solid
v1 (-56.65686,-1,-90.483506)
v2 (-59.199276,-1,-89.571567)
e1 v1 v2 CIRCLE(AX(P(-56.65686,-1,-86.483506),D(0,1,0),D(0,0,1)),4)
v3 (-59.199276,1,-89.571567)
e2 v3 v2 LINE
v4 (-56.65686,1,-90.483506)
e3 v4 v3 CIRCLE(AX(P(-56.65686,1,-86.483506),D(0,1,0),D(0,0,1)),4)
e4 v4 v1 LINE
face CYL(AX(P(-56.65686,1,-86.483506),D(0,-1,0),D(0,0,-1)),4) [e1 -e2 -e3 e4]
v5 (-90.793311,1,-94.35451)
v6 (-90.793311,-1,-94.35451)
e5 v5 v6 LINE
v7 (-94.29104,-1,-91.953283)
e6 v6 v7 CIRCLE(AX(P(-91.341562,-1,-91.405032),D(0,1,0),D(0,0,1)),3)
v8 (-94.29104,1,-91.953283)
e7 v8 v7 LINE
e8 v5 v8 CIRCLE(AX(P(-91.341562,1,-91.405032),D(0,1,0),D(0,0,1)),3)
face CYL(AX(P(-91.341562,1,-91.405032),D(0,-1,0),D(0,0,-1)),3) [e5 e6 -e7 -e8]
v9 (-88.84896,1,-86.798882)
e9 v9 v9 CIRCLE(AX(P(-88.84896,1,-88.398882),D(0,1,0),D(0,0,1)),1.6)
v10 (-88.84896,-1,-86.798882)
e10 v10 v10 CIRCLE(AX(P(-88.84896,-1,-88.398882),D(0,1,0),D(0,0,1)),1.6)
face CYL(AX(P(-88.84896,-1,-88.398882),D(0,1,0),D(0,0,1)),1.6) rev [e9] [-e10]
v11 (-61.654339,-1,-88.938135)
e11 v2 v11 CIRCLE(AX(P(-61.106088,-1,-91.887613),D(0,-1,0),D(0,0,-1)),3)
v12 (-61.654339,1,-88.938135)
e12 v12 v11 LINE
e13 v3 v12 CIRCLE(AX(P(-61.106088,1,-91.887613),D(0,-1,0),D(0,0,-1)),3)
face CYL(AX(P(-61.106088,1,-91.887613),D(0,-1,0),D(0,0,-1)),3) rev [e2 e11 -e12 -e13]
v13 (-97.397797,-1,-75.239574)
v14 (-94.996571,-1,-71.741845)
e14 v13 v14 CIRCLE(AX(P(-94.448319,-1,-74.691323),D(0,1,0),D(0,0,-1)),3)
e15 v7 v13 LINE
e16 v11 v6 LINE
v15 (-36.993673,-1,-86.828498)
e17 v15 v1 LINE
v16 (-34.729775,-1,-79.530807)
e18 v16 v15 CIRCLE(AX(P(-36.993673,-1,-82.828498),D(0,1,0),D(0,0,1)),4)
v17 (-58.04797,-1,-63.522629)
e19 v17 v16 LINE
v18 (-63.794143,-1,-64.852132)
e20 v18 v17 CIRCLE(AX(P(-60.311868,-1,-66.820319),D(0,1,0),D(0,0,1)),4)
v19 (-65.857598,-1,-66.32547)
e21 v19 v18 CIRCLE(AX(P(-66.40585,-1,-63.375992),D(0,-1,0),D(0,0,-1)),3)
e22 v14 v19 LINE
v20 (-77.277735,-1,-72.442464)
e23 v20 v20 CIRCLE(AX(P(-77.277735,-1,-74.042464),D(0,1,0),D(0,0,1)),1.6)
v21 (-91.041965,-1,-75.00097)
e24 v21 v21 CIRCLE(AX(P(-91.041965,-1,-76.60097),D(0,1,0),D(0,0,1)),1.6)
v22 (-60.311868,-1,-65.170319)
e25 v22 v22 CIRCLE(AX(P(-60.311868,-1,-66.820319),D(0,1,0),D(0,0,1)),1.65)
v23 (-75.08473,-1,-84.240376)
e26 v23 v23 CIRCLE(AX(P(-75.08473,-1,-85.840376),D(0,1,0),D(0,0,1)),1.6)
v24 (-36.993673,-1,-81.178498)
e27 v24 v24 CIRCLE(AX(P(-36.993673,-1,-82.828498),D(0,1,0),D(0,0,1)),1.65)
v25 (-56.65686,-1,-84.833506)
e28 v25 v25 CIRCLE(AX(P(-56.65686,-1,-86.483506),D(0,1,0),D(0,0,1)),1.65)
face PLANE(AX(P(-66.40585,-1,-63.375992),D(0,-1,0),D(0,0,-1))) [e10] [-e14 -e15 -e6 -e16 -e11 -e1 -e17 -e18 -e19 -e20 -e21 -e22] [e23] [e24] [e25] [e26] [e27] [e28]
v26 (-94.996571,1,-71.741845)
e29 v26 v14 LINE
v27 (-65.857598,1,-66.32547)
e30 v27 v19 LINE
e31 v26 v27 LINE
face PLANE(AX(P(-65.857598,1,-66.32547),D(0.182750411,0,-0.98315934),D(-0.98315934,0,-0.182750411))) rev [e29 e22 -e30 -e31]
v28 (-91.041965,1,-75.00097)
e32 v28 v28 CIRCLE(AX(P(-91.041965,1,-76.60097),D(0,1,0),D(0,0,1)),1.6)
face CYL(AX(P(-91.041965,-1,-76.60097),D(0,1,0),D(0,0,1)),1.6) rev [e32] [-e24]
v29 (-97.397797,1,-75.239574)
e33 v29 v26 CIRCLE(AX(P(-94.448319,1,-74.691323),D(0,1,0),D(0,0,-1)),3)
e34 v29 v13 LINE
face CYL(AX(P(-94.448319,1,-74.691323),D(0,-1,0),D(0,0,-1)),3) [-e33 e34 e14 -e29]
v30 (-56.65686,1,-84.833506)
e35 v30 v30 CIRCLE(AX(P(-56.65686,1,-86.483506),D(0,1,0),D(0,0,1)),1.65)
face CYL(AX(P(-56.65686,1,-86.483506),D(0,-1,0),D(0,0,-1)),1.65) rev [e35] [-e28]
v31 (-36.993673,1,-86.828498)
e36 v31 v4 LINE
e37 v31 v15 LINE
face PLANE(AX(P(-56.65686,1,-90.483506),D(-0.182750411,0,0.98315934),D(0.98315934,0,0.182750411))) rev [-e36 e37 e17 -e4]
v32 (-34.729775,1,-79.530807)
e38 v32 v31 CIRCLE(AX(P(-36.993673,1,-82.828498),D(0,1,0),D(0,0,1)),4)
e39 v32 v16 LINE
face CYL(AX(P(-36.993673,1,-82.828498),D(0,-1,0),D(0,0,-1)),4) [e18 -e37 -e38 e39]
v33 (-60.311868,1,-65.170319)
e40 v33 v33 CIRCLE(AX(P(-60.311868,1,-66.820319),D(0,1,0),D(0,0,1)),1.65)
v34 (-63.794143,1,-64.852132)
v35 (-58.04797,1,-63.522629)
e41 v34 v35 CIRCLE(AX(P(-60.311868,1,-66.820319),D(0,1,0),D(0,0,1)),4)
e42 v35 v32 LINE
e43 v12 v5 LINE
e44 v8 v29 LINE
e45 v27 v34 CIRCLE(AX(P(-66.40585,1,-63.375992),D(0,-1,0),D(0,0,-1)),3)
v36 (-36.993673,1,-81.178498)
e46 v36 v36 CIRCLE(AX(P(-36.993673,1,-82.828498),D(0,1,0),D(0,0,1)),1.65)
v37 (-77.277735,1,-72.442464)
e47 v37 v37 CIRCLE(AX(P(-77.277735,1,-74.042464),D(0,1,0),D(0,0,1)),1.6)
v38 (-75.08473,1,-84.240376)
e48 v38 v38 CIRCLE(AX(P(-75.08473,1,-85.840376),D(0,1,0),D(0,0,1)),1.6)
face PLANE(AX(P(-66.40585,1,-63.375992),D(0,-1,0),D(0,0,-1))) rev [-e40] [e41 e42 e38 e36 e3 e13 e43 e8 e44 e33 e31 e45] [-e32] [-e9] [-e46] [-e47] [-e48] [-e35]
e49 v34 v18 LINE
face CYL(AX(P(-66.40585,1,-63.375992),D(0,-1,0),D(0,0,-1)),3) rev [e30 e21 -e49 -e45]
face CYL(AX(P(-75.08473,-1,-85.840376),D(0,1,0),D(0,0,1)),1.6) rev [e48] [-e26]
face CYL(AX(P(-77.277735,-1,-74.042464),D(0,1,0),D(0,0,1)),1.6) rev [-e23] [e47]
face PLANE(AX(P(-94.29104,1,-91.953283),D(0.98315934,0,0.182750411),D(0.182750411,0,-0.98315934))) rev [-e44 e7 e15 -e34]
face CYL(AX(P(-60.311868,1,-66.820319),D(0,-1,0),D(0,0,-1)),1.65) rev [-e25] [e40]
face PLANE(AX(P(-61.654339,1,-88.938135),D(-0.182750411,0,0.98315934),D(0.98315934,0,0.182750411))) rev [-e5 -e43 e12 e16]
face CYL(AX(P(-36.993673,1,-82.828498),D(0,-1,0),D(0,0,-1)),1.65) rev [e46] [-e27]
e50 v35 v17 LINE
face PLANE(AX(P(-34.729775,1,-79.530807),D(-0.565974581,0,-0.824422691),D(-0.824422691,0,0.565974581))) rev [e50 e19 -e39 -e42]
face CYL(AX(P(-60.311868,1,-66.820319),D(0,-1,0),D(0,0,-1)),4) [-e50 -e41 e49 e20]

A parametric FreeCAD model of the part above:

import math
import FreeCAD as App
import Part
import Sketcher
from FreeCAD import Vector
Q = App.Units.Quantity

doc = App.newDocument("Part")
body = doc.addObject("PartDesign::Body", "Body")

sketch1 = body.newObject("Sketcher::SketchObject", "Sketch")
sketch1.AttachmentSupport = (doc.getObject("XZ_Plane"), [""])
sketch1.MapMode = "FlatFace"
sketch1.addGeometry(Part.LineSegment(Vector(-37, -86.8, 0), Vector(-56.7, -90.5, 0)), False)
sketch1.addGeometry(Part.ArcOfCircle(Part.Circle(Vector(-56.7, -86.5, 0), Vector(0, 0, 1), 4), math.radians(-129), math.radians(-90)), False)
sketch1.addGeometry(Part.ArcOfCircle(Part.Circle(Vector(-61.1, -91.9, 0), Vector(0, 0, 1), 3), math.radians(51), math.radians(101)), False)
sketch1.addGeometry(Part.LineSegment(Vector(-61.7, -88.9, 0), Vector(-90.8, -94.4, 0)), False)
sketch1.addGeometry(Part.ArcOfCircle(Part.Circle(Vector(-91.3, -91.4, 0), Vector(0, 0, 1), 3), math.radians(-169), math.radians(-79)), False)
sketch1.addGeometry(Part.LineSegment(Vector(-94.3, -92, 0), Vector(-97.4, -75.2, 0)), False)
sketch1.addGeometry(Part.ArcOfCircle(Part.Circle(Vector(-94.4, -74.7, 0), Vector(0, 0, 1), 3), math.radians(101), math.radians(191)), False)
sketch1.addGeometry(Part.LineSegment(Vector(-95, -71.7, 0), Vector(-65.9, -66.3, 0)), False)
sketch1.addGeometry(Part.ArcOfCircle(Part.Circle(Vector(-66.4, -63.4, 0), Vector(0, 0, 1), 3), math.radians(-79), math.radians(-29)), False)
sketch1.addGeometry(Part.ArcOfCircle(Part.Circle(Vector(-60.3, -66.8, 0), Vector(0, 0, 1), 4), math.radians(56), math.radians(151)), False)
sketch1.addGeometry(Part.LineSegment(Vector(-58, -63.5, 0), Vector(-34.7, -79.5, 0)), False)
sketch1.addGeometry(Part.ArcOfCircle(Part.Circle(Vector(-37, -82.8, 0), Vector(0, 0, 1), 4), math.radians(-90), math.radians(56)), False)
sketch1.addGeometry(Part.Circle(Vector(-60.3, -66.8, 0), Vector(0, 0, 1), 1.7), False)
sketch1.addGeometry(Part.Circle(Vector(-37, -82.8, 0), Vector(0, 0, 1), 1.7), False)
sketch1.addGeometry(Part.Circle(Vector(-56.7, -86.5, 0), Vector(0, 0, 1), 1.7), False)
sketch1.addConstraint(Sketcher.Constraint("Coincident", 0, 2, 1, 2))
sketch1.addConstraint(Sketcher.Constraint("Tangent", 1, 1, 2, 1))
sketch1.addConstraint(Sketcher.Constraint("Tangent", 2, 2, 3, 1))
sketch1.addConstraint(Sketcher.Constraint("Tangent", 3, 2, 4, 2))
sketch1.addConstraint(Sketcher.Constraint("Tangent", 4, 1, 5, 1))
sketch1.addConstraint(Sketcher.Constraint("Tangent", 5, 2, 6, 2))
sketch1.addConstraint(Sketcher.Constraint("Tangent", 6, 1, 7, 1))
sketch1.addConstraint(Sketcher.Constraint("Tangent", 7, 2, 8, 1))
sketch1.addConstraint(Sketcher.Constraint("Tangent", 8, 2, 9, 2))
sketch1.addConstraint(Sketcher.Constraint("Tangent", 9, 1, 10, 1))
sketch1.addConstraint(Sketcher.Constraint("Tangent", 10, 2, 11, 2))
sketch1.addConstraint(Sketcher.Constraint("Coincident", 11, 1, 0, 1))
sketch1.addConstraint(Sketcher.Constraint("Coincident", 12, 3, 9, 3))
sketch1.addConstraint(Sketcher.Constraint("Coincident", 13, 3, 11, 3))
sketch1.addConstraint(Sketcher.Constraint("Coincident", 14, 3, 1, 3))
sketch1.addConstraint(Sketcher.Constraint("Equal", 2, 4))
sketch1.addConstraint(Sketcher.Constraint("Equal", 4, 6))
sketch1.addConstraint(Sketcher.Constraint("Equal", 6, 8))
sketch1.addConstraint(Sketcher.Constraint("Equal", 1, 9))
sketch1.addConstraint(Sketcher.Constraint("Equal", 9, 11))
sketch1.addConstraint(Sketcher.Constraint("Equal", 12, 13))
sketch1.addConstraint(Sketcher.Constraint("Equal", 13, 14))
sketch1.addConstraint(Sketcher.Constraint("Parallel", 0, 3))
sketch1.addConstraint(Sketcher.Constraint("Perpendicular", 3, 5))
sketch1.addConstraint(Sketcher.Constraint("Perpendicular", 5, 7))
sketch1.addConstraint(Sketcher.Constraint("Vertical", 14, 3, 0, 2))
sketch1.addConstraint(Sketcher.Constraint("Vertical", 13, 3, 11, 1))
sketch1.addConstraint(Sketcher.Constraint("Equal", 3, 7))
sketch1.addConstraint(Sketcher.Constraint("Radius", 1, 4.0))
sketch1.addConstraint(Sketcher.Constraint("Radius", 2, 3.0))
sketch1.addConstraint(Sketcher.Constraint("Diameter", 12, 3.3))
sketch1.addConstraint(Sketcher.Constraint("Distance", 0, 20.0))
sketch1.addConstraint(Sketcher.Constraint("Distance", 5, 17.0))
sketch1.addConstraint(Sketcher.Constraint("Angle", 0, Q("-169.469995 deg")))
sketch1.addConstraint(Sketcher.Constraint("Angle", 10, Q("-34.469995 deg")))
sketch1.addConstraint(Sketcher.Constraint("DistanceX", 7, 2, -1, 1, 65.857598))
sketch1.addConstraint(Sketcher.Constraint("DistanceX", 4, 1, 2, 2, 32.636701))
sketch1.addConstraint(Sketcher.Constraint("Distance", 10, 28.284271))
sketch1.addConstraint(Sketcher.Constraint("DistanceY", 4, 3, -1, 1, 91.405032))
pad1 = body.newObject("PartDesign::Pad", "Pad")
pad1.Profile = sketch1
pad1.Length = 2
pad1.Midplane = True

sketch2 = body.newObject("Sketcher::SketchObject", "Sketch001")
sketch2.AttachmentSupport = (doc.getObject("XZ_Plane"), [""])
sketch2.MapMode = "FlatFace"
sketch2.AttachmentOffset = App.Placement(Vector(0, 0, -1), App.Rotation())
sketch2.addGeometry(Part.Circle(Vector(-88.8, -88.4, 0), Vector(0, 0, 1), 1.6), False)
sketch2.addGeometry(Part.Circle(Vector(-91, -76.6, 0), Vector(0, 0, 1), 1.6), False)
sketch2.addGeometry(Part.Circle(Vector(-75.1, -85.8, 0), Vector(0, 0, 1), 1.6), False)
sketch2.addGeometry(Part.Circle(Vector(-77.3, -74, 0), Vector(0, 0, 1), 1.6), False)
sketch2.addConstraint(Sketcher.Constraint("Equal", 0, 1))
sketch2.addConstraint(Sketcher.Constraint("Equal", 1, 2))
sketch2.addConstraint(Sketcher.Constraint("Equal", 2, 3))
sketch2.addConstraint(Sketcher.Constraint("Diameter", 0, 3.2))
sketch2.addConstraint(Sketcher.Constraint("DistanceX", 0, 3, -1, 1, 88.84896))
sketch2.addConstraint(Sketcher.Constraint("DistanceY", 0, 3, -1, 1, 88.398882))
sketch2.addConstraint(Sketcher.Constraint("DistanceY", 1, 3, -1, 1, 76.60097))
sketch2.addConstraint(Sketcher.Constraint("DistanceX", 2, 3, -1, 1, 75.08473))
sketch2.addConstraint(Sketcher.Constraint("DistanceX", 1, 3, 3, 3, 13.764231))
sketch2.addConstraint(Sketcher.Constraint("DistanceX", 1, 3, -1, 1, 91.041965))
sketch2.addConstraint(Sketcher.Constraint("DistanceY", 2, 3, -1, 1, 85.840376))
sketch2.addConstraint(Sketcher.Constraint("DistanceY", 3, 3, -1, 1, 74.042464))
pocket1 = body.newObject("PartDesign::Pocket", "Pocket")
pocket1.Profile = sketch2
pocket1.Length = 2
pocket1.Reversed = True

doc.recompute()
